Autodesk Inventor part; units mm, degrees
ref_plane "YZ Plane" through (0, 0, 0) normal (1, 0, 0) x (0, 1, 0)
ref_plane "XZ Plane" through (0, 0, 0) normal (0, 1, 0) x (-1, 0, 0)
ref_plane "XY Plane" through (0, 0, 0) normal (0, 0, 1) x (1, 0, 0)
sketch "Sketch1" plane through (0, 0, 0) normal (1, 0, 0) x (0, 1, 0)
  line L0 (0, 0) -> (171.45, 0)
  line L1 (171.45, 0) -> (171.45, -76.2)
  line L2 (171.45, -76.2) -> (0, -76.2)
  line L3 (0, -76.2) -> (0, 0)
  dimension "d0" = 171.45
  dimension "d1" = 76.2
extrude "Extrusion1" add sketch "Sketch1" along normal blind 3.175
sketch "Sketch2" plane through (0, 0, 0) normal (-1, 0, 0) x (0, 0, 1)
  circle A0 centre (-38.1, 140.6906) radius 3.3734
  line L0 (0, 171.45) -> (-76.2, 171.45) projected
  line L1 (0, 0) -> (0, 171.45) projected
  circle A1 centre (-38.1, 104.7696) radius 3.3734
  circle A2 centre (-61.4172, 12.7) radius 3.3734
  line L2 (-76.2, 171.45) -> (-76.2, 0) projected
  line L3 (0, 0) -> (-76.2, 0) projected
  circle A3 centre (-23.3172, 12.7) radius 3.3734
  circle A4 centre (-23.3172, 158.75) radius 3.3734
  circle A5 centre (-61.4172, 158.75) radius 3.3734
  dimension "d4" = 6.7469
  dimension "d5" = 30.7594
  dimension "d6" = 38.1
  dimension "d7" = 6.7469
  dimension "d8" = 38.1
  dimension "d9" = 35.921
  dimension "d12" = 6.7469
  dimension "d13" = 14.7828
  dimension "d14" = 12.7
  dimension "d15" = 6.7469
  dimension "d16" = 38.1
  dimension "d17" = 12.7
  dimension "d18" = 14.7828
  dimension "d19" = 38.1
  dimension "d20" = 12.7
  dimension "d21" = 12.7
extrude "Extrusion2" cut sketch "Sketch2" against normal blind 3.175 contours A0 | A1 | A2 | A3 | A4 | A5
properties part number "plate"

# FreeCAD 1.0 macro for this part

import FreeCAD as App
import Part
import Sketcher

V = App.Vector
Q = App.Units.Quantity


def add_polygon(sketch, points):
    """Adds a closed chain of lines whose ends are joined by coincident constraints."""
    first, n = sketch.GeometryCount, len(points)
    for a, b in zip(points, points[1:] + points[:1]):
        sketch.addGeometry(Part.LineSegment(App.Vector(*a, 0), App.Vector(*b, 0)), False)
    for i in range(n):
        sketch.addConstraint(Sketcher.Constraint("Coincident", first + i, 2, first + (i + 1) % n, 1))

doc = App.newDocument("Part")
params = doc.addObject("Spreadsheet::Sheet", "Params")
for row, (alias, value) in enumerate([
    ("sketch1_height", "3 in"),
    ("sketch1_width", "6.75 in"),
    ("pad1_length", "0.125 in"),
    ("sketch2_diameter", "0.265622 in"),
    ("pocket1_length", "0.125 in"),
], start=1):
    params.set(f"A{row}", alias)
    params.set(f"B{row}", "=" + value)
    params.setAlias(f"B{row}", alias)

body = doc.addObject("PartDesign::Body", "Body")

# Sketch on YZ plane
sketch1 = body.newObject("Sketcher::SketchObject", "Sketch")
sketch1.AttachmentSupport = (doc.getObject("YZ_Plane"), [""])
sketch1.MapMode = "FlatFace"
add_polygon(sketch1, [(171.45, 0), (0, 0), (0, -76.2), (171.45, -76.2)])  # lines 0-3
sketch1.addConstraint([
    Sketcher.Constraint("Horizontal", 0),
    Sketcher.Constraint("Vertical", 1),
    Sketcher.Constraint("Horizontal", 2),
    Sketcher.Constraint("Vertical", 3),
    Sketcher.Constraint("Coincident", 0, 2, -1, 1),
    Sketcher.Constraint("DistanceY", 1, 2, 1, 1, Q("3 in")),
    Sketcher.Constraint("DistanceX", 0, 2, 0, 1, Q("6.75 in")),
])
sketch1.setExpression("Constraints[9]", "Params.sketch1_height")
sketch1.setExpression("Constraints[10]", "Params.sketch1_width")
pad1 = body.newObject("PartDesign::Pad", "Pad")
pad1.Profile = sketch1
pad1.setExpression("Length", "Params.pad1_length")

# Sketch on YZ plane
sketch2 = body.newObject("Sketcher::SketchObject", "Sketch001")
sketch2.AttachmentSupport = (doc.getObject("YZ_Plane"), [""])
sketch2.MapMode = "FlatFace"
sketch2.addGeometry([
    Part.Circle(V(140.6906, -38.1, 0), V(0, 0, 1), 3.3734),  # 0
    Part.Circle(V(104.7696, -38.1, 0), V(0, 0, 1), 3.3734),  # 1
    Part.Circle(V(12.7, -61.4172, 0), V(0, 0, 1), 3.3734),  # 2
    Part.Circle(V(12.7, -23.3172, 0), V(0, 0, 1), 3.3734),  # 3
    Part.Circle(V(158.75, -23.3172, 0), V(0, 0, 1), 3.3734),  # 4
    Part.Circle(V(158.75, -61.4172, 0), V(0, 0, 1), 3.3734),  # 5
], False)
sketch2.addConstraint([
    Sketcher.Constraint("Equal", 0, 1),
    Sketcher.Constraint("Equal", 1, 2),
    Sketcher.Constraint("Equal", 2, 3),
    Sketcher.Constraint("Equal", 3, 4),
    Sketcher.Constraint("Equal", 4, 5),
    Sketcher.Constraint("Horizontal", 0, 3, 1, 3),
    Sketcher.Constraint("Horizontal", 3, 3, 4, 3),
    Sketcher.Constraint("Horizontal", 2, 3, 5, 3),
    Sketcher.Constraint("Vertical", 2, 3, 3, 3),
    Sketcher.Constraint("Vertical", 4, 3, 5, 3),
    Sketcher.Constraint("Diameter", 0, Q("0.265622 in")),
    Sketcher.Constraint("DistanceY", 0, 3, -1, 1, Q("1.5 in")),
    Sketcher.Constraint("DistanceX", -1, 1, 2, 3, Q("0.5 in")),
    Sketcher.Constraint("DistanceY", 2, 3, 3, 3, Q("1.5 in")),
    Sketcher.Constraint("DistanceY", 1, 3, 3, 3, Q("0.582 in")),
    Sketcher.Constraint("DistanceX", -1, 1, 4, 3, Q("6.25 in")),
    Sketcher.Constraint("DistanceX", 1, 3, 0, 3, Q("35.921 mm")),
    Sketcher.Constraint("DistanceX", -1, 1, 0, 3, Q("5.539 in")),
])
sketch2.setExpression("Constraints[10]", "Params.sketch2_diameter")
pocket1 = body.newObject("PartDesign::Pocket", "Pocket")
pocket1.Profile = sketch2
pocket1.setExpression("Length", "Params.pocket1_length")
pocket1.Reversed = True

doc.recompute()
